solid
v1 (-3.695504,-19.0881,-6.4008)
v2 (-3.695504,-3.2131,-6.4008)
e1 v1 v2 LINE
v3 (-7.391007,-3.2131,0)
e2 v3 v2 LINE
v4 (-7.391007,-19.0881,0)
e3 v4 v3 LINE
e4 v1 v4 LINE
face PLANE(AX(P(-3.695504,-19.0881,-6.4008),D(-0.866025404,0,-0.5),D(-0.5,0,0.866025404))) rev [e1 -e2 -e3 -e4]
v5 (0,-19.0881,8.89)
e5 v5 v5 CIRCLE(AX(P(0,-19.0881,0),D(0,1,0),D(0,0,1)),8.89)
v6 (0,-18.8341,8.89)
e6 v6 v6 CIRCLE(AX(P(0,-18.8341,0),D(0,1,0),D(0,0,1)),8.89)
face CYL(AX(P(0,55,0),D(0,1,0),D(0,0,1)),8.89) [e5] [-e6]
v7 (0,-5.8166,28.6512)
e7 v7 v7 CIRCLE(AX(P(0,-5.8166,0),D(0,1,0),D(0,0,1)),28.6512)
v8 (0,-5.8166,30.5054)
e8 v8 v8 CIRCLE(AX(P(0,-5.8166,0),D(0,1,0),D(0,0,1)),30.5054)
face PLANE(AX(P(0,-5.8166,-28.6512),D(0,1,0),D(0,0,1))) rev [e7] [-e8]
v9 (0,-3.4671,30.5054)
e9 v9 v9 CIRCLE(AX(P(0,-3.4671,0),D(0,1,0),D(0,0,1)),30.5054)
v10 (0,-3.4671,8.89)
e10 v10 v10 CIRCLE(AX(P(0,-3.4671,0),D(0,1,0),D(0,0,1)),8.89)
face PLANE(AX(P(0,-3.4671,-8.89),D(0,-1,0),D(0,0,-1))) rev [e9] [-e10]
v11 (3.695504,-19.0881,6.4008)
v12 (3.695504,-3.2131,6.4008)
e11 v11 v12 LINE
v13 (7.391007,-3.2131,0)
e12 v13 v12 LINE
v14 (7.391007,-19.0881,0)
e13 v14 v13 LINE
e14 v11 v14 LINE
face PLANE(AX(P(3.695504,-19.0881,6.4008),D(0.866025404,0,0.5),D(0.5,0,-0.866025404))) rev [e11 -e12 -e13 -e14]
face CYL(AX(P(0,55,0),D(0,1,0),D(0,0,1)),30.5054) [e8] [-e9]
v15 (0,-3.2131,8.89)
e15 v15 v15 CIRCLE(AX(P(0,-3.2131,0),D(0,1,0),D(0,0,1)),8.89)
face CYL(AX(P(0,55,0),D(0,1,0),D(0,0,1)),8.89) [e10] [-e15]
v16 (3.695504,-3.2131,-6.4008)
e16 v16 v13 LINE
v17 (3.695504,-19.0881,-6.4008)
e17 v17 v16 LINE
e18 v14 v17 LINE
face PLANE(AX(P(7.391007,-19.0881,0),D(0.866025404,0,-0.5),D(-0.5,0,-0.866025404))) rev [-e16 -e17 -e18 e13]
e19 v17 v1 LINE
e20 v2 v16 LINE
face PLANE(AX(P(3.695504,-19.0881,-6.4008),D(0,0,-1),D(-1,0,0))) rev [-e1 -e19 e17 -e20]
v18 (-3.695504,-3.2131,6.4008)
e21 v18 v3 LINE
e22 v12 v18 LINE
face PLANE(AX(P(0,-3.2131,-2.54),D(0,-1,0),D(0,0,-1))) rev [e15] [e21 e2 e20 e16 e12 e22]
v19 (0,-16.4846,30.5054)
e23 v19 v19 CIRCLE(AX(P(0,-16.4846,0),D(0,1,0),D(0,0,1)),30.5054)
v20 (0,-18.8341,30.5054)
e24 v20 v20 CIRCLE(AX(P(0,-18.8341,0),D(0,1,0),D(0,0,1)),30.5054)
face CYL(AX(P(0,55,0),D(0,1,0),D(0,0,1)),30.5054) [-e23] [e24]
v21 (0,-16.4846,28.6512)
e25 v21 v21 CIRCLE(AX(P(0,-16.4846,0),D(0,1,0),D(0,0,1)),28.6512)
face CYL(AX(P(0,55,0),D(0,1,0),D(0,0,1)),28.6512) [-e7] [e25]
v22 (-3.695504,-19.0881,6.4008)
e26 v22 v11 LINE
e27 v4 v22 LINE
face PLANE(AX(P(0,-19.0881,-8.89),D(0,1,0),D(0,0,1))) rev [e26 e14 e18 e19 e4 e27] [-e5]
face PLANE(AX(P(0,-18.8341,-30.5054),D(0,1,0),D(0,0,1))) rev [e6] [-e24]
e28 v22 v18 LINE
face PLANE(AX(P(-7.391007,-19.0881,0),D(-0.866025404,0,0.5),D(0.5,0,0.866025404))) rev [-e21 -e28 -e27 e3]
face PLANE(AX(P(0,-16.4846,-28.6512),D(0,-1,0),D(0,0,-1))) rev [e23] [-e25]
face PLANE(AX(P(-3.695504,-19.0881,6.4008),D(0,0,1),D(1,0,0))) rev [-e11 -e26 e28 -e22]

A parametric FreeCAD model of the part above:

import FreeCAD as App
import Part
import Sketcher

V = App.Vector
Q = App.Units.Quantity

doc = App.newDocument("Part")
params = doc.addObject("Spreadsheet::Sheet", "Params")
for row, (alias, value) in enumerate([
    ("sketch1_width", "0.01 in"),
    ("sketch1_width2", "0.42 in"),
    ("sketch1_height", "0.25 in"),
    ("sketch1_width3", "0.625 in"),
    ("sketch1_height2", "0.851 in"),
    ("revolution_angle", "360 deg"),
], start=1):
    params.set(f"A{row}", alias)
    params.set(f"B{row}", "=" + value)
    params.setAlias(f"B{row}", alias)

body = doc.addObject("PartDesign::Body", "Body")

# Sketch on YZ plane
sketch1 = body.newObject("Sketcher::SketchObject", "Sketch")
sketch1.AttachmentSupport = (doc.getObject("YZ_Plane"), [""])
sketch1.MapMode = "FlatFace"
sketch1.addGeometry(Part.LineSegment(V(-3.2131, -8.89, 0), V(-3.2131, -2.54, 0)), False)
sketch1.addGeometry(Part.LineSegment(V(-3.2131, -2.54, 0), V(-19.0881, -2.54, 0)), False)
sketch1.addGeometry(Part.LineSegment(V(-19.0881, -2.54, 0), V(-19.0881, -8.89, 0)), False)
sketch1.addGeometry(Part.LineSegment(V(-19.0881, -8.89, 0), V(-18.8341, -8.89, 0)), False)
sketch1.addGeometry(Part.LineSegment(V(-18.8341, -8.89, 0), V(-18.8341, -30.5054, 0)), False)
sketch1.addGeometry(Part.LineSegment(V(-18.8341, -30.5054, 0), V(-16.4846, -30.5054, 0)), False)
sketch1.addGeometry(Part.LineSegment(V(-16.4846, -30.5054, 0), V(-16.4846, -28.6512, 0)), False)
sketch1.addGeometry(Part.LineSegment(V(-16.4846, -28.6512, 0), V(-5.8166, -28.6512, 0)), False)
sketch1.addGeometry(Part.LineSegment(V(-5.8166, -28.6512, 0), V(-5.8166, -30.5054, 0)), False)
sketch1.addGeometry(Part.LineSegment(V(-5.8166, -30.5054, 0), V(-3.4671, -30.5054, 0)), False)
sketch1.addGeometry(Part.LineSegment(V(-3.4671, -30.5054, 0), V(-3.4671, -8.89, 0)), False)
sketch1.addGeometry(Part.LineSegment(V(-3.4671, -8.89, 0), V(-3.2131, -8.89, 0)), False)
sketch1.addConstraint(Sketcher.Constraint("Coincident", 0, 2, 1, 1))
sketch1.addConstraint(Sketcher.Constraint("Coincident", 1, 2, 2, 1))
sketch1.addConstraint(Sketcher.Constraint("Coincident", 2, 2, 3, 1))
sketch1.addConstraint(Sketcher.Constraint("Coincident", 3, 2, 4, 1))
sketch1.addConstraint(Sketcher.Constraint("Coincident", 4, 2, 5, 1))
sketch1.addConstraint(Sketcher.Constraint("Coincident", 5, 2, 6, 1))
sketch1.addConstraint(Sketcher.Constraint("Coincident", 6, 2, 7, 1))
sketch1.addConstraint(Sketcher.Constraint("Coincident", 7, 2, 8, 1))
sketch1.addConstraint(Sketcher.Constraint("Coincident", 8, 2, 9, 1))
sketch1.addConstraint(Sketcher.Constraint("Coincident", 9, 2, 10, 1))
sketch1.addConstraint(Sketcher.Constraint("Coincident", 10, 2, 11, 1))
sketch1.addConstraint(Sketcher.Constraint("Coincident", 11, 2, 0, 1))
sketch1.addConstraint(Sketcher.Constraint("Vertical", 0))
sketch1.addConstraint(Sketcher.Constraint("Horizontal", 1))
sketch1.addConstraint(Sketcher.Constraint("Vertical", 2))
sketch1.addConstraint(Sketcher.Constraint("Horizontal", 3))
sketch1.addConstraint(Sketcher.Constraint("Vertical", 4))
sketch1.addConstraint(Sketcher.Constraint("Horizontal", 5))
sketch1.addConstraint(Sketcher.Constraint("Vertical", 6))
sketch1.addConstraint(Sketcher.Constraint("Horizontal", 7))
sketch1.addConstraint(Sketcher.Constraint("Vertical", 8))
sketch1.addConstraint(Sketcher.Constraint("Horizontal", 9))
sketch1.addConstraint(Sketcher.Constraint("Vertical", 10))
sketch1.addConstraint(Sketcher.Constraint("Horizontal", 11))
sketch1.addConstraint(Sketcher.Constraint("Horizontal", 5, 2, 8, 2))
sketch1.addConstraint(Sketcher.Constraint("Horizontal", 3, 2, 10, 2))
sketch1.addConstraint(Sketcher.Constraint("Equal", 5, 9))
sketch1.addConstraint(Sketcher.Constraint("Equal", 3, 11))
sketch1.addConstraint(Sketcher.Constraint("DistanceX", 3, 1, 3, 2, Q("0.01 in")))
sketch1.addConstraint(Sketcher.Constraint("DistanceX", 7, 1, 7, 2, Q("0.42 in")))
sketch1.addConstraint(Sketcher.Constraint("DistanceY", 0, 1, 0, 2, Q("0.25 in")))
sketch1.addConstraint(Sketcher.Constraint("DistanceY", 0, 2, -1, 1, Q("0.1 in")))
sketch1.addConstraint(Sketcher.Constraint("DistanceX", 1, 2, 1, 1, Q("0.625 in")))
sketch1.addConstraint(Sketcher.Constraint("DistanceY", 4, 2, 4, 1, Q("0.851 in")))
sketch1.addConstraint(Sketcher.Constraint("DistanceY", 6, 1, 6, 2, Q("0.073 in")))
sketch1.addConstraint(Sketcher.Constraint("DistanceX", 5, 2, -1, 1, Q("0.649 in")))
sketch1.setExpression("Constraints[28]", "Params.sketch1_width")
sketch1.setExpression("Constraints[29]", "Params.sketch1_width2")
sketch1.setExpression("Constraints[30]", "Params.sketch1_height")
sketch1.setExpression("Constraints[32]", "Params.sketch1_width3")
sketch1.setExpression("Constraints[33]", "Params.sketch1_height2")
revolution = body.newObject("PartDesign::Revolution", "Revolution")
revolution.Profile = sketch1
revolution.ReferenceAxis = (sketch1, ["H_Axis"])
revolution.setExpression("Angle", "Params.revolution_angle")

# Sketch on XZ plane
sketch2 = body.newObject("Sketcher::SketchObject", "Sketch001")
sketch2.AttachmentSupport = (doc.getObject("XZ_Plane"), [""])
sketch2.MapMode = "FlatFace"
sketch2.AttachmentOffset = App.Placement(V(0, 0, 0.1265 * 25.4), App.Rotation())
sketch2.addGeometry(Part.LineSegment(V(3.695504, -6.4008, 0), V(-3.695504, -6.4008, 0)), False)
sketch2.addGeometry(Part.LineSegment(V(-3.695504, -6.4008, 0), V(-7.391007, 0, 0)), False)
sketch2.addGeometry(Part.LineSegment(V(-7.391007, 0, 0), V(-3.695504, 6.4008, 0)), False)
sketch2.addGeometry(Part.LineSegment(V(-3.695504, 6.4008, 0), V(3.695504, 6.4008, 0)), False)
sketch2.addGeometry(Part.LineSegment(V(3.695504, 6.4008, 0), V(7.391007, 0, 0)), False)
sketch2.addGeometry(Part.LineSegment(V(7.391007, 0, 0), V(3.695504, -6.4008, 0)), False)
sketch2.addConstraint(Sketcher.Constraint("Coincident", 0, 2, 1, 1))
sketch2.addConstraint(Sketcher.Constraint("Coincident", 1, 2, 2, 1))
sketch2.addConstraint(Sketcher.Constraint("Coincident", 2, 2, 3, 1))
sketch2.addConstraint(Sketcher.Constraint("Coincident", 3, 2, 4, 1))
sketch2.addConstraint(Sketcher.Constraint("Coincident", 4, 2, 5, 1))
sketch2.addConstraint(Sketcher.Constraint("Coincident", 5, 2, 0, 1))
sketch2.addConstraint(Sketcher.Constraint("Horizontal", 0))
sketch2.addConstraint(Sketcher.Constraint("Horizontal", 3))
sketch2.addConstraint(Sketcher.Constraint("Symmetric", 0, 2, 3, 2, -1, 1))
sketch2.addConstraint(Sketcher.Constraint("Symmetric", 1, 2, 4, 2, -1, 1))
sketch2.addConstraint(Sketcher.Constraint("PointOnObject", 1, 2, -1))
sketch2.addConstraint(Sketcher.Constraint("Parallel", 2, 5))
sketch2.addConstraint(Sketcher.Constraint("Vertical", 0, 2, 2, 2))
sketch2.addConstraint(Sketcher.Constraint("Angle", 1, Q("120 deg")))
sketch2.addConstraint(Sketcher.Constraint("DistanceY", 0, 2, -1, 1, Q("0.252 in")))
sketch2.addConstraint(Sketcher.Constraint("DistanceX", 0, 2, 0, 1, 7.391007))
pocket1 = body.newObject("PartDesign::Pocket", "Pocket")
pocket1.Profile = sketch2
pocket1.Type = "ThroughAll"
pocket1.Midplane = True

doc.recompute()
